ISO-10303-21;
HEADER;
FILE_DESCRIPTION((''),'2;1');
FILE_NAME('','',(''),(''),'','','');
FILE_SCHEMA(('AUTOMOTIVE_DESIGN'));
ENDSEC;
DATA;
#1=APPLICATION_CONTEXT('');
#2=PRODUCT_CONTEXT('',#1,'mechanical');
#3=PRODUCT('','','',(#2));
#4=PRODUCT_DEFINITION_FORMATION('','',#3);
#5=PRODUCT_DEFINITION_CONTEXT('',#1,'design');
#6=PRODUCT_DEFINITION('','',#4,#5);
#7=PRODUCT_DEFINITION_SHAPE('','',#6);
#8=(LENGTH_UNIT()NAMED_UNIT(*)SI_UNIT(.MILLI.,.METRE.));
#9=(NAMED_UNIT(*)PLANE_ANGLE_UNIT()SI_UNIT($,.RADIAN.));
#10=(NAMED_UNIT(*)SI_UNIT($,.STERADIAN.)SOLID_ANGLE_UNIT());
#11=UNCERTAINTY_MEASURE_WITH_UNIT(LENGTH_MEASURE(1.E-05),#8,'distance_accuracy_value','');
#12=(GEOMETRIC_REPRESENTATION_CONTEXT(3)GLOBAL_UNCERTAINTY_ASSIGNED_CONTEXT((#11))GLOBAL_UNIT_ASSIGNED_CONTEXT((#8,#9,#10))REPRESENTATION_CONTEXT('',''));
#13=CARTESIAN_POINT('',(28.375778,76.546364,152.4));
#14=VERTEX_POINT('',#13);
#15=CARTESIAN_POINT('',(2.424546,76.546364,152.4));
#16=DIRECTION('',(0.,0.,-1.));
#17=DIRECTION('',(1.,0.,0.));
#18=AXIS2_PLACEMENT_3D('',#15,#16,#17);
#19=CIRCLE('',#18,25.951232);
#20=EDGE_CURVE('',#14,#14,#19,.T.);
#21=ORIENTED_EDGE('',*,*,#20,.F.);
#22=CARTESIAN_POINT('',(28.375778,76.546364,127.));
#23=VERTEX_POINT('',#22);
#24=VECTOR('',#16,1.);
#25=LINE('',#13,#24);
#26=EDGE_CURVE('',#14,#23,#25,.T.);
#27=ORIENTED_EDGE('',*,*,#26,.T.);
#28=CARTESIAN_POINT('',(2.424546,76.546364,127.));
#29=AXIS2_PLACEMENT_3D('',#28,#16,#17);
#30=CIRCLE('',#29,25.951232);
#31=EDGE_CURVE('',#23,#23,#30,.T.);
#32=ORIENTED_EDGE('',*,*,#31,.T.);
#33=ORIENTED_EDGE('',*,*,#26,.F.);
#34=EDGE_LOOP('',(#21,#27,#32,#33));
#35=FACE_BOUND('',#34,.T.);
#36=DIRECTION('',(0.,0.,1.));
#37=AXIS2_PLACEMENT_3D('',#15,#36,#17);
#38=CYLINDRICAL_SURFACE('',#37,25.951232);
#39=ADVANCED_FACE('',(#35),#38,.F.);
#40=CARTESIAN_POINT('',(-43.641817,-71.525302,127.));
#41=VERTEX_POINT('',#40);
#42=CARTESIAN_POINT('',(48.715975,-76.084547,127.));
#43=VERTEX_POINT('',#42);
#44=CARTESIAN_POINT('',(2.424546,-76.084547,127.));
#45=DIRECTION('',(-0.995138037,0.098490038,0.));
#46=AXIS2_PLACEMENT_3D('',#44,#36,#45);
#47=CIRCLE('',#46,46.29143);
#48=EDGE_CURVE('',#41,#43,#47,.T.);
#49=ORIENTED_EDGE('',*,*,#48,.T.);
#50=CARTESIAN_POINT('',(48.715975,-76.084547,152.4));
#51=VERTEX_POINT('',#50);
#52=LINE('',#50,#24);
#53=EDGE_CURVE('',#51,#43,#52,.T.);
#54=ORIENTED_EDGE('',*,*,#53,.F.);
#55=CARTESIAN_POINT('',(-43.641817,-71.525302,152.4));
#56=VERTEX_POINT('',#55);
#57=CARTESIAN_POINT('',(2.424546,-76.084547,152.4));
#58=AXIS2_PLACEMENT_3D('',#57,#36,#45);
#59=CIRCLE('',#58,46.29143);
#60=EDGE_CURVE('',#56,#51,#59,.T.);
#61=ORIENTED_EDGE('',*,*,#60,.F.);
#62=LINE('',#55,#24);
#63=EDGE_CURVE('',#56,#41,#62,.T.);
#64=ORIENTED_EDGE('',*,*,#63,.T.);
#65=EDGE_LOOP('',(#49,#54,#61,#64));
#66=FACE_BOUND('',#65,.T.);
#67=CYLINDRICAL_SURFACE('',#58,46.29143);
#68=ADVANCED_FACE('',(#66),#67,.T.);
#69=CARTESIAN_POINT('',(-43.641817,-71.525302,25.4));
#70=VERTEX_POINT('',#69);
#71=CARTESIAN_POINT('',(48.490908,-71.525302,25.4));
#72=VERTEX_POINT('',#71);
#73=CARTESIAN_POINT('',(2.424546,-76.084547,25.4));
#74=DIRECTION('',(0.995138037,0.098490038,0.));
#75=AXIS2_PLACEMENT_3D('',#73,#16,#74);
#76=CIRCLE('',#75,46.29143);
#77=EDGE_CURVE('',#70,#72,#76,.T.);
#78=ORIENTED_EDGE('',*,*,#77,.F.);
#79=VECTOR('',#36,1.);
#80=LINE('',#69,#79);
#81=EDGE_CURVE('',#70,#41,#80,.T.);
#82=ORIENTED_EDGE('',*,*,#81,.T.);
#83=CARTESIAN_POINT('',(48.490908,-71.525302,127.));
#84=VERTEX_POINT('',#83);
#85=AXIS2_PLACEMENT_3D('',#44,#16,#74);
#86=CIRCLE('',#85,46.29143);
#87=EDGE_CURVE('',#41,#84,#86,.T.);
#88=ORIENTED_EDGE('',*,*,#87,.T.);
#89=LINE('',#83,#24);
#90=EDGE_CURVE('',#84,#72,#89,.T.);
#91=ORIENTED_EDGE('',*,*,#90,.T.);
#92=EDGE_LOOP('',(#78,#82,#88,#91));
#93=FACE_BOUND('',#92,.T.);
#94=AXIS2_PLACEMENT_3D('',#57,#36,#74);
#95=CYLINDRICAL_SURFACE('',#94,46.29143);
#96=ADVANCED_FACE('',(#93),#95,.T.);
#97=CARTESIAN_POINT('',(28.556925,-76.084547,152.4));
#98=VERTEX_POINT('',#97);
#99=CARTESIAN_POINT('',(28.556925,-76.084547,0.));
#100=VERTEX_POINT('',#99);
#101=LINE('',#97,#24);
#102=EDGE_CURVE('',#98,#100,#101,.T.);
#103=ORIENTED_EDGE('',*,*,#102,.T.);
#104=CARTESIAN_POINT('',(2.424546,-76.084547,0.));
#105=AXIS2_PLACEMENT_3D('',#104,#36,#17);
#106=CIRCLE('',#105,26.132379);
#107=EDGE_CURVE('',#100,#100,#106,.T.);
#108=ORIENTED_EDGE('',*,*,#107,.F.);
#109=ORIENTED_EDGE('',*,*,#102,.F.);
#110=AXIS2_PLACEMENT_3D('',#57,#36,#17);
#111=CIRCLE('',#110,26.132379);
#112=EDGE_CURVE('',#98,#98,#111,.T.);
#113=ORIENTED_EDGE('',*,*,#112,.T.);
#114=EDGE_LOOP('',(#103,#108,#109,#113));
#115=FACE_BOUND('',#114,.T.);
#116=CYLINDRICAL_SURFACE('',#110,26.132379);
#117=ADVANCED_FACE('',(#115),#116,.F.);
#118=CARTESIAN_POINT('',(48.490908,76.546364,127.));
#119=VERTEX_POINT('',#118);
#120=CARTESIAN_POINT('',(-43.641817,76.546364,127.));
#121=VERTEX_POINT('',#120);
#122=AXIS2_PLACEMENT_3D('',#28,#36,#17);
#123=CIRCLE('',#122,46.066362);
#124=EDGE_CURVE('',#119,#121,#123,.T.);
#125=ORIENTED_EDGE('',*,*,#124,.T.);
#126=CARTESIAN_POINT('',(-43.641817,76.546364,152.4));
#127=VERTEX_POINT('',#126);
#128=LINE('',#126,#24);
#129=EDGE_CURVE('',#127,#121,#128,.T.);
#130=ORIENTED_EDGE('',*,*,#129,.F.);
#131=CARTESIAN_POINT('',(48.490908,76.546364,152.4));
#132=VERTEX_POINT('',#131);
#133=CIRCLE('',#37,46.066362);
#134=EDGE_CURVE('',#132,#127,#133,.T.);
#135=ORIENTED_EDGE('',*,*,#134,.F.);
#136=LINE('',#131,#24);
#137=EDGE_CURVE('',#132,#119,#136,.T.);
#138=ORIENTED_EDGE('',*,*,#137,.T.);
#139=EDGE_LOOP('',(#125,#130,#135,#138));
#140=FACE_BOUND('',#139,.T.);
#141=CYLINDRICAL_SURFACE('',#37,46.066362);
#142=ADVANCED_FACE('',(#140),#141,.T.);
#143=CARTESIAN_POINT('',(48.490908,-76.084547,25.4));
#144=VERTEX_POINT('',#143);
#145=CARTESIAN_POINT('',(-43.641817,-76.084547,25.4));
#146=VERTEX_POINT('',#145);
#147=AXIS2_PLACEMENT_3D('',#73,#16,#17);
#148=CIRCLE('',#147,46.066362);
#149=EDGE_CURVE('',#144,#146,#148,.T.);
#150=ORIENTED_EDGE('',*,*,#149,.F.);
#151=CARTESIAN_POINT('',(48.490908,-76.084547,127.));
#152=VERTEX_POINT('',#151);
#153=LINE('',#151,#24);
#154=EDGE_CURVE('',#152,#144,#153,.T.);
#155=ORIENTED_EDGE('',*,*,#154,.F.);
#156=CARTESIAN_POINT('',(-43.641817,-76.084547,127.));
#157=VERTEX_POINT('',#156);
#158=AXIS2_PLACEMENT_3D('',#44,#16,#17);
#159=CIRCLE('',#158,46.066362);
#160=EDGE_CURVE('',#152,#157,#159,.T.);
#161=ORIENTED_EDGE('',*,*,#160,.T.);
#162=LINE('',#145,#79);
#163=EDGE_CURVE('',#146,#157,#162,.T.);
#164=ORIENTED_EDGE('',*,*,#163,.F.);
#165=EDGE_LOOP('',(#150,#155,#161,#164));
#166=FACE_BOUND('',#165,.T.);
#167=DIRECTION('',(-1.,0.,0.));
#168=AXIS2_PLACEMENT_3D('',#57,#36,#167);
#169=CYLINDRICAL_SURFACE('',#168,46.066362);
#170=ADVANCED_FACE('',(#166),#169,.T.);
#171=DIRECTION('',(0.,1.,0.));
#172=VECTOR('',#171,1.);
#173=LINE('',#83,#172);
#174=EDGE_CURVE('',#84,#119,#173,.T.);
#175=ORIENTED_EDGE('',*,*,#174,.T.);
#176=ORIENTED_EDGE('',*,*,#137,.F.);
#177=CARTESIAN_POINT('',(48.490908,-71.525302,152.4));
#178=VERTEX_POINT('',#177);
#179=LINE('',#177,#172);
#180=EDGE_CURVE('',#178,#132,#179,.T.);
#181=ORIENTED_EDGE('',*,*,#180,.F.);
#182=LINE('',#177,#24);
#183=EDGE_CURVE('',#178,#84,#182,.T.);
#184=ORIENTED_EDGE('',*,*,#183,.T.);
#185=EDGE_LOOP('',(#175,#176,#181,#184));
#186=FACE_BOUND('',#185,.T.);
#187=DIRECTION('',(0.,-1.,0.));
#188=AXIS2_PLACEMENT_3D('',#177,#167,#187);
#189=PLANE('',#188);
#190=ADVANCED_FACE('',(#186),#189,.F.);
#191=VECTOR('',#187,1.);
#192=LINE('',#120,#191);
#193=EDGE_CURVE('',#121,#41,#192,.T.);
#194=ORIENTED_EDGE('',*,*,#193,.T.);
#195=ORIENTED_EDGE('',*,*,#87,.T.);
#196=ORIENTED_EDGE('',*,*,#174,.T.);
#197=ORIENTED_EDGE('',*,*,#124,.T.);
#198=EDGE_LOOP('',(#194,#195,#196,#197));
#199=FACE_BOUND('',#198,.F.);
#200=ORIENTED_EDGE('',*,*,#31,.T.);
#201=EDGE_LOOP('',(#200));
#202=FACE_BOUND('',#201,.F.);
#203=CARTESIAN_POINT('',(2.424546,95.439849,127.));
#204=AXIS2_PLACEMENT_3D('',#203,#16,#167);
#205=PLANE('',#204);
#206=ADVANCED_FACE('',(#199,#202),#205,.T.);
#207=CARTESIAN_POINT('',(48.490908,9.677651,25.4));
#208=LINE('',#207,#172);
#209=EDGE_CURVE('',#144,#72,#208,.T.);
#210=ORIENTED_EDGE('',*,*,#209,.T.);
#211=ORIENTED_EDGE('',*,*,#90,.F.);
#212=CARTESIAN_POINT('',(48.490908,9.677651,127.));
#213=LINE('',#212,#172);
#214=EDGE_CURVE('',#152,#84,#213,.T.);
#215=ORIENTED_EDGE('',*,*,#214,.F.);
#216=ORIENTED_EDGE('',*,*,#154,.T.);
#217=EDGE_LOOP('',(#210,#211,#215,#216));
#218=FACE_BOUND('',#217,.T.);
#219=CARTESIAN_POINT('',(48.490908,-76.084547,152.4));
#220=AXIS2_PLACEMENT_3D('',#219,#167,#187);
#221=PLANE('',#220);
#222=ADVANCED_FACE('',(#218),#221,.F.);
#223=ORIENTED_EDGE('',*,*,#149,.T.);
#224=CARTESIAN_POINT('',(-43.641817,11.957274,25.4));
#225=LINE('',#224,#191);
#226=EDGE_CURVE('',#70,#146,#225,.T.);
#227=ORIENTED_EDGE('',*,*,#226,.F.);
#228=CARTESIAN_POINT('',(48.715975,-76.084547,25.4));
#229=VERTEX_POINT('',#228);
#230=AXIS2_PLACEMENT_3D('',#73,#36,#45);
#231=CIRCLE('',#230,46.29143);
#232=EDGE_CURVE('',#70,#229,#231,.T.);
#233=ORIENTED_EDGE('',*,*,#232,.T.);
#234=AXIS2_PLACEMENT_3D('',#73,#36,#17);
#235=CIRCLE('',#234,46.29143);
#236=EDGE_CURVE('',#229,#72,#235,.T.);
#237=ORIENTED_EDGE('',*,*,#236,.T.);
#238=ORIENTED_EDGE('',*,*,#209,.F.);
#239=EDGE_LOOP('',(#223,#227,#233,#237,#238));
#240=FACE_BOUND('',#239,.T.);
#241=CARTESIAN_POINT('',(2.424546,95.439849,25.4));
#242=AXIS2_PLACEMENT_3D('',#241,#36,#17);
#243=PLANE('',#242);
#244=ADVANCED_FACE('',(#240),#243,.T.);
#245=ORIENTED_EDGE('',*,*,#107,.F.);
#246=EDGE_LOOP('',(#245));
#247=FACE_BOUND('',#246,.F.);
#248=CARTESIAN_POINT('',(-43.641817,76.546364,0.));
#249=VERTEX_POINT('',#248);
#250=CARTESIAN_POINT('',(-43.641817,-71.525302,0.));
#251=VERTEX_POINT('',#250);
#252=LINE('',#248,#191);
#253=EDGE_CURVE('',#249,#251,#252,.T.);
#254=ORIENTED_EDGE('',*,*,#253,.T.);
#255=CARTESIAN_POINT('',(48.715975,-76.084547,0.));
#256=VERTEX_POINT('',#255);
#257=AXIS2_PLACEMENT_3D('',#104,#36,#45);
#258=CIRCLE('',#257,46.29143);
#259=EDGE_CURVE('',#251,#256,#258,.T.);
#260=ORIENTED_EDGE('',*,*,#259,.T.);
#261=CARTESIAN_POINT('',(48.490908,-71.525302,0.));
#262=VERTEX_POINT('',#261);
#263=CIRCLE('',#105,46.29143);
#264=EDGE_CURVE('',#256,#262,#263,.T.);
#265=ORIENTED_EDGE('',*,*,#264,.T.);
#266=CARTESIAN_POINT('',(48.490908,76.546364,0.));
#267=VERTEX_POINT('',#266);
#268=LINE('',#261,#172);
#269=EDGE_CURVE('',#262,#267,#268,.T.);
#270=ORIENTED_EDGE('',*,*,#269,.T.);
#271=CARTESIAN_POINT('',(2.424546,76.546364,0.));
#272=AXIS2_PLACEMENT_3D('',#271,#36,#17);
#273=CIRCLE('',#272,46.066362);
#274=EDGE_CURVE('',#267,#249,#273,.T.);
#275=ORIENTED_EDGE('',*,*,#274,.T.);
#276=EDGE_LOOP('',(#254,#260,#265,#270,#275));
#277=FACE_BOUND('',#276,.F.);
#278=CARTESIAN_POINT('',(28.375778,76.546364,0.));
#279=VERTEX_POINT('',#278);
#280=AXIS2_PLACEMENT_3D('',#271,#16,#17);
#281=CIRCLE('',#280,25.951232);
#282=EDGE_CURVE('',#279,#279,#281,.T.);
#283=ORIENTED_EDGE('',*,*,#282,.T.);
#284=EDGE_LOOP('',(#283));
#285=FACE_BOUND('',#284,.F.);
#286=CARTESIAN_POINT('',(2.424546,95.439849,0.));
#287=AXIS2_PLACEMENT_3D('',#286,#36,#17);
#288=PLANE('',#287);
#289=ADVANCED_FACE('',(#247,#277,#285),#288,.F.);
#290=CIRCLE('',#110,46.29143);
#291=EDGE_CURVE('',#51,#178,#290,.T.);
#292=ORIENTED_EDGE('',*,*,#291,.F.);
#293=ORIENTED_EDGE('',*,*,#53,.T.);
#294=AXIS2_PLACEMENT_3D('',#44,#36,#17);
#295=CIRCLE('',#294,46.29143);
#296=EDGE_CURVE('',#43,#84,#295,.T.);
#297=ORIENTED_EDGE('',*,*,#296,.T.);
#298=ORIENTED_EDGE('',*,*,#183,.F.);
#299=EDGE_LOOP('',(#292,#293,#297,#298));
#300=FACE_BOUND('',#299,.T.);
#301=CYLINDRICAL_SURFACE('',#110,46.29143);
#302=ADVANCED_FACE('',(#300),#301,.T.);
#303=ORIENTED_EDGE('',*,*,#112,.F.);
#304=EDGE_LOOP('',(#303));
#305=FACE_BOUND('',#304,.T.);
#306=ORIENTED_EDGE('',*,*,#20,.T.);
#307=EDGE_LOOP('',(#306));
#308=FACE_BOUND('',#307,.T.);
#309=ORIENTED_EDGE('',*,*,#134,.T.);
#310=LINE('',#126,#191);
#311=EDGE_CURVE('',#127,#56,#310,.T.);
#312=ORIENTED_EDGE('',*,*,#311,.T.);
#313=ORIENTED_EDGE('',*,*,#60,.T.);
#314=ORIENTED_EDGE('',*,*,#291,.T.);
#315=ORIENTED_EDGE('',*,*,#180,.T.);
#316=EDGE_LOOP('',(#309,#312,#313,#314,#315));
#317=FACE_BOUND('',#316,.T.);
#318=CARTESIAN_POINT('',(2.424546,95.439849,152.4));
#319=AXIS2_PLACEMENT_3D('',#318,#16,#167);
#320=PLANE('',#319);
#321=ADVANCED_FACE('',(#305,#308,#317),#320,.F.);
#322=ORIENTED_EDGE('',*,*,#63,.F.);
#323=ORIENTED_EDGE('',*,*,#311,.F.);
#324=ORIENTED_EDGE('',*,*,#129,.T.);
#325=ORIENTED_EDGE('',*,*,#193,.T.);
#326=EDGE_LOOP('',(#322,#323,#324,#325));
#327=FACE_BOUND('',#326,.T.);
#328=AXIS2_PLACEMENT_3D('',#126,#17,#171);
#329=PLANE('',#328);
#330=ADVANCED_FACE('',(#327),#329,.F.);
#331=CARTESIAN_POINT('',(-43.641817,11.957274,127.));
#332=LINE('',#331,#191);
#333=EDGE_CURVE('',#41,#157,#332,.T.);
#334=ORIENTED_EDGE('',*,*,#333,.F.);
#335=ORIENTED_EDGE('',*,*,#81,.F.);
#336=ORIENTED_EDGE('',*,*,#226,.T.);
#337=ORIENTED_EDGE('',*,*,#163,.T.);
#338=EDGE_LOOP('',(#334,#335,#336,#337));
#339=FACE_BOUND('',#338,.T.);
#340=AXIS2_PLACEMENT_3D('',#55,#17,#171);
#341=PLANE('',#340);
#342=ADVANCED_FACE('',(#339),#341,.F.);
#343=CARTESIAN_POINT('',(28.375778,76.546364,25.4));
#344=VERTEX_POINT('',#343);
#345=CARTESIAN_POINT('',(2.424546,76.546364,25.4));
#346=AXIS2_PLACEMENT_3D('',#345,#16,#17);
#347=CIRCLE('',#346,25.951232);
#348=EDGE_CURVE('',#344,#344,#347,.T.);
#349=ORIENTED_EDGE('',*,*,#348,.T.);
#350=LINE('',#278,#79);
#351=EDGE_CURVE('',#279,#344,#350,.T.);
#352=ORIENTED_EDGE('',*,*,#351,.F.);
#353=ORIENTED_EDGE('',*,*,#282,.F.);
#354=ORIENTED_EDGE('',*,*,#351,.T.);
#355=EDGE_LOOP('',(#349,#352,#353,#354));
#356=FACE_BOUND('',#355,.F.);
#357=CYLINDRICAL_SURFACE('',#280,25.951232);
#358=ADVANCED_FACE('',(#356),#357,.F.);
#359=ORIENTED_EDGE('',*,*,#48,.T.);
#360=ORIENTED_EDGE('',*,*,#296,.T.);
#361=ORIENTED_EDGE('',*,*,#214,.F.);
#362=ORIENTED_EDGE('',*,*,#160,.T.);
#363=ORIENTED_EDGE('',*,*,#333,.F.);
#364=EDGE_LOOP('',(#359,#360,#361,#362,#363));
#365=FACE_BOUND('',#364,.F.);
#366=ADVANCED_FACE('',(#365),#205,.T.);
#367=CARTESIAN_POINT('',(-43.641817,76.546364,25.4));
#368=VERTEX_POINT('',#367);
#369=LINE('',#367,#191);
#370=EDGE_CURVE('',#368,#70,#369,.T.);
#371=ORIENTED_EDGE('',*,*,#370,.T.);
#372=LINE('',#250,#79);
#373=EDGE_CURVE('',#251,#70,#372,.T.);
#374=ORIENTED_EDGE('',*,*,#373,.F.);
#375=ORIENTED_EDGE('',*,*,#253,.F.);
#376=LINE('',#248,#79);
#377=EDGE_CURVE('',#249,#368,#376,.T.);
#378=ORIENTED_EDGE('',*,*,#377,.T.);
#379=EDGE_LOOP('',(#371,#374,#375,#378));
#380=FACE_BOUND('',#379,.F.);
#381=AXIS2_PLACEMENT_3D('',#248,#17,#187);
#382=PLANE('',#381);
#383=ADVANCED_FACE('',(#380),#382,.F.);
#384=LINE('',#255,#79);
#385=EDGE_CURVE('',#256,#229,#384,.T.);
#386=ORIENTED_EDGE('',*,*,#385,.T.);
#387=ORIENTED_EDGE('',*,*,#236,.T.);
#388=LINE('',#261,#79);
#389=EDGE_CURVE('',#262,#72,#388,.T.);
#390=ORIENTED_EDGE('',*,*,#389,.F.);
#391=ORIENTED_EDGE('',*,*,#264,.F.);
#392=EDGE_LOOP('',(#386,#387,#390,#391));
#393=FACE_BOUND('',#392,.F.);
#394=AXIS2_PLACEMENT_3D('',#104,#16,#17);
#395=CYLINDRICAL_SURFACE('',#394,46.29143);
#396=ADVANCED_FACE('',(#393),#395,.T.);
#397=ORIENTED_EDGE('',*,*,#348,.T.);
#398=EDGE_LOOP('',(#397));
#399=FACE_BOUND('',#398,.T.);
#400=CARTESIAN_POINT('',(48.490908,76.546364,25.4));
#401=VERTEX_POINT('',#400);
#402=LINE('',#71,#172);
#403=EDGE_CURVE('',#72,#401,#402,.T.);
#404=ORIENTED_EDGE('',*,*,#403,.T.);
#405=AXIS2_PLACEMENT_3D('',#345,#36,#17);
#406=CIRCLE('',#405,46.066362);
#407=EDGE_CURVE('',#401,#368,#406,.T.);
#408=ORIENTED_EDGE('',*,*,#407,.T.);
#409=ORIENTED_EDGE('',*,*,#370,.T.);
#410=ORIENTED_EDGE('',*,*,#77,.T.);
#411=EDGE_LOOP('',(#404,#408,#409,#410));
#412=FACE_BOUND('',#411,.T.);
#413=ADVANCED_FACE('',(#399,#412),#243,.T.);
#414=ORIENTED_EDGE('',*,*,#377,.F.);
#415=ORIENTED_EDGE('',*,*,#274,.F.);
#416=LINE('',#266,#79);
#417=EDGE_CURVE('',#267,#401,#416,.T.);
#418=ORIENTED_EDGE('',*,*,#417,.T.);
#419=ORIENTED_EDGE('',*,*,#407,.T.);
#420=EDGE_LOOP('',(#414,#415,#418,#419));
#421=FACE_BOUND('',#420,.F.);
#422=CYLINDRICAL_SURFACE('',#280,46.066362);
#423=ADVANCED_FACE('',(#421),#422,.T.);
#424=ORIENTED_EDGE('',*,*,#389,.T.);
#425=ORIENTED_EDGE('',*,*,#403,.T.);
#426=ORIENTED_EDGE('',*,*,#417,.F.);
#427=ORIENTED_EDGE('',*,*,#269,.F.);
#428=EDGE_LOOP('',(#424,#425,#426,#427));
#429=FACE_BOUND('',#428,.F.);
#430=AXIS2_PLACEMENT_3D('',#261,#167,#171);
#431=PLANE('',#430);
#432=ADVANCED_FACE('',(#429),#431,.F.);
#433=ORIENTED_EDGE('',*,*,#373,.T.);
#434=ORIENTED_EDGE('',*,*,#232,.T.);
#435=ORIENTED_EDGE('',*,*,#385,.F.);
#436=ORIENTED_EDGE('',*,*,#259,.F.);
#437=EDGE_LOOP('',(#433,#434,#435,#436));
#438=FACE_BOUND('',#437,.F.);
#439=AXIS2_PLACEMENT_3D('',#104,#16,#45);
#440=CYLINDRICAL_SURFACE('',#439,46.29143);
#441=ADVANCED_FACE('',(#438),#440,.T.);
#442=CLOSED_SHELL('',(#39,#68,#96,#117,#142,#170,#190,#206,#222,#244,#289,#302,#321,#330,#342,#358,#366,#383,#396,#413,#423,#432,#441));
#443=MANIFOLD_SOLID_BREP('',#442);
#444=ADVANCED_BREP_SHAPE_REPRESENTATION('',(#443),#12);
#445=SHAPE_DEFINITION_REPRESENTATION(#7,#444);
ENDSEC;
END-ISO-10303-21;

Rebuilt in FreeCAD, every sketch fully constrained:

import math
import FreeCAD as App
import Part
import Sketcher
from FreeCAD import Vector
Q = App.Units.Quantity

doc = App.newDocument("Part")
body = doc.addObject("PartDesign::Body", "Body")

# Sketch on XY plane
sketch1 = body.newObject("Sketcher::SketchObject", "Sketch")
sketch1.AttachmentSupport = (doc.getObject("XY_Plane"), [""])
sketch1.MapMode = "FlatFace"
sketch1.addGeometry([
    Part.LineSegment(Vector(48.5, -76.1, 0), Vector(48.5, -71.5, 0)),  # 0
    Part.ArcOfCircle(Part.Circle(Vector(2.4, -76.1, 0), Vector(0, 0, 1), 46.3), math.radians(6), math.radians(174)),  # 1
    Part.LineSegment(Vector(-43.6, -71.5, 0), Vector(-43.6, -76.1, 0)),  # 2
    Part.ArcOfCircle(Part.Circle(Vector(2.4, -76.1, 0), Vector(0, 0, 1), 46.1), math.radians(180), math.radians(360)),  # 3
    Part.Circle(Vector(2.4, -76.1, 0), Vector(0, 0, 1), 26.1),  # 4
], False)
sketch1.addConstraint([
    Sketcher.Constraint("Coincident", 0, 2, 1, 1),
    Sketcher.Constraint("Coincident", 1, 2, 2, 1),
    Sketcher.Constraint("Tangent", 2, 2, 3, 1),
    Sketcher.Constraint("Tangent", 3, 2, 0, 1),
    Sketcher.Constraint("Vertical", 0),
    Sketcher.Constraint("Vertical", 2),
    Sketcher.Constraint("Coincident", 3, 3, 1, 3),
    Sketcher.Constraint("Coincident", 4, 3, 1, 3),
    Sketcher.Constraint("Radius", 1, 46.29143),
    Sketcher.Constraint("Diameter", 4, 52.264758),
    Sketcher.Constraint("Radius", 3, 46.066362),
    Sketcher.Constraint("DistanceX", -1, 1, 1, 3, 2.424546),
    Sketcher.Constraint("DistanceY", 1, 3, -1, 1, 76.084547),
])
pad1 = body.newObject("PartDesign::Pad", "Pad")
pad1.Profile = sketch1
pad1.Length = Q("3 in")

# Sketch on XY plane
sketch2 = body.newObject("Sketcher::SketchObject", "Sketch001")
sketch2.AttachmentSupport = (doc.getObject("XY_Plane"), [""])
sketch2.MapMode = "FlatFace"
sketch2.addGeometry([
    Part.ArcOfCircle(Part.Circle(Vector(2.4, 76.5, 0), Vector(0, 0, 1), 46.1), math.radians(0), math.radians(180)),  # 0
    Part.LineSegment(Vector(-43.6, 76.5, 0), Vector(-43.6, -71.5, 0)),  # 1
    Part.ArcOfCircle(Part.Circle(Vector(2.4, -76.1, 0), Vector(0, 0, 1), 46.3), math.radians(174), math.radians(360)),  # 2
    Part.ArcOfCircle(Part.Circle(Vector(2.4, -76.1, 0), Vector(0, 0, 1), 46.3), math.radians(0), math.radians(5.65)),  # 3
    Part.LineSegment(Vector(48.5, -71.5, 0), Vector(48.5, 76.5, 0)),  # 4
    Part.Circle(Vector(2.4, 76.5, 0), Vector(0, 0, 1), 26),  # 5
    Part.LineSegment(Vector(28.6, -76.1, 0), Vector(48.5, -76.1, 0)),  # 6
    Part.ArcOfCircle(Part.Circle(Vector(2.4, -76.1, 0), Vector(0, 0, 1), 46.1), math.radians(180), math.radians(360)),  # 7
    Part.LineSegment(Vector(-43.6, -76.1, 0), Vector(-23.7, -76.1, 0)),  # 8
    Part.ArcOfCircle(Part.Circle(Vector(2.4, -76.1, 0), Vector(0, 0, 1), 26.1), math.radians(0), math.radians(180)),  # 9
], False)
sketch2.addConstraint([
    Sketcher.Constraint("Tangent", 0, 2, 1, 1),
    Sketcher.Constraint("Coincident", 1, 2, 2, 1),
    Sketcher.Constraint("Tangent", 2, 2, 3, 1),
    Sketcher.Constraint("Coincident", 3, 2, 4, 1),
    Sketcher.Constraint("Tangent", 4, 2, 0, 1),
    Sketcher.Constraint("Coincident", 6, 2, 7, 2),
    Sketcher.Constraint("Coincident", 7, 1, 8, 1),
    Sketcher.Constraint("Coincident", 8, 2, 9, 2),
    Sketcher.Constraint("Coincident", 9, 1, 6, 1),
    Sketcher.Constraint("Vertical", 1),
    Sketcher.Constraint("Vertical", 4),
    Sketcher.Constraint("Horizontal", 6),
    Sketcher.Constraint("Horizontal", 8),
    Sketcher.Constraint("Coincident", 5, 3, 0, 3),
    Sketcher.Constraint("Coincident", 7, 3, 2, 3),
    Sketcher.Constraint("Coincident", 9, 3, 2, 3),
    Sketcher.Constraint("Equal", 2, 3),
    Sketcher.Constraint("Equal", 0, 7),
    Sketcher.Constraint("Horizontal", 9, 3, 2, 2),
    Sketcher.Constraint("Horizontal", 1, 2, 3, 2),
    Sketcher.Constraint("Horizontal", 2, 2, 6, 2),
    Sketcher.Constraint("Horizontal", 6, 2, 7, 1),
    Sketcher.Constraint("Radius", 2, 46.29143),
    Sketcher.Constraint("Radius", 9, 26.132379),
    Sketcher.Constraint("Diameter", 5, 51.902464),
    Sketcher.Constraint("Radius", 0, 46.066362),
    Sketcher.Constraint("DistanceY", 1, 2, 1, 1, 148.071666),
    Sketcher.Constraint("DistanceX", -1, 1, 0, 3, 2.424546),
    Sketcher.Constraint("DistanceY", -1, 1, 0, 3, 76.546364),
])
pad2 = body.newObject("PartDesign::Pad", "Pad001")
pad2.Profile = sketch2
pad2.Length = Q("1 in")
body2 = doc.addObject("PartDesign::Body", "Body001")
doc.recompute()

body2.BaseFeature = body
doc.recompute()

mirroring = doc.addObject("Part::Mirroring", "Mirroring")
mirroring.Source = body
mirroring.Base = Vector(2.424546, -75.874217, 76.2)
mirroring.Normal = Vector(0, 0, 1)
body3 = doc.addObject("PartDesign::Body", "Body002")
body3.BaseFeature = mirroring
boolean = body2.newObject("PartDesign::Boolean", "Boolean")
boolean.Type = "Fuse"
boolean.addObjects([body3])
doc.recompute()
mirroring.Visibility = False

doc.recompute()
